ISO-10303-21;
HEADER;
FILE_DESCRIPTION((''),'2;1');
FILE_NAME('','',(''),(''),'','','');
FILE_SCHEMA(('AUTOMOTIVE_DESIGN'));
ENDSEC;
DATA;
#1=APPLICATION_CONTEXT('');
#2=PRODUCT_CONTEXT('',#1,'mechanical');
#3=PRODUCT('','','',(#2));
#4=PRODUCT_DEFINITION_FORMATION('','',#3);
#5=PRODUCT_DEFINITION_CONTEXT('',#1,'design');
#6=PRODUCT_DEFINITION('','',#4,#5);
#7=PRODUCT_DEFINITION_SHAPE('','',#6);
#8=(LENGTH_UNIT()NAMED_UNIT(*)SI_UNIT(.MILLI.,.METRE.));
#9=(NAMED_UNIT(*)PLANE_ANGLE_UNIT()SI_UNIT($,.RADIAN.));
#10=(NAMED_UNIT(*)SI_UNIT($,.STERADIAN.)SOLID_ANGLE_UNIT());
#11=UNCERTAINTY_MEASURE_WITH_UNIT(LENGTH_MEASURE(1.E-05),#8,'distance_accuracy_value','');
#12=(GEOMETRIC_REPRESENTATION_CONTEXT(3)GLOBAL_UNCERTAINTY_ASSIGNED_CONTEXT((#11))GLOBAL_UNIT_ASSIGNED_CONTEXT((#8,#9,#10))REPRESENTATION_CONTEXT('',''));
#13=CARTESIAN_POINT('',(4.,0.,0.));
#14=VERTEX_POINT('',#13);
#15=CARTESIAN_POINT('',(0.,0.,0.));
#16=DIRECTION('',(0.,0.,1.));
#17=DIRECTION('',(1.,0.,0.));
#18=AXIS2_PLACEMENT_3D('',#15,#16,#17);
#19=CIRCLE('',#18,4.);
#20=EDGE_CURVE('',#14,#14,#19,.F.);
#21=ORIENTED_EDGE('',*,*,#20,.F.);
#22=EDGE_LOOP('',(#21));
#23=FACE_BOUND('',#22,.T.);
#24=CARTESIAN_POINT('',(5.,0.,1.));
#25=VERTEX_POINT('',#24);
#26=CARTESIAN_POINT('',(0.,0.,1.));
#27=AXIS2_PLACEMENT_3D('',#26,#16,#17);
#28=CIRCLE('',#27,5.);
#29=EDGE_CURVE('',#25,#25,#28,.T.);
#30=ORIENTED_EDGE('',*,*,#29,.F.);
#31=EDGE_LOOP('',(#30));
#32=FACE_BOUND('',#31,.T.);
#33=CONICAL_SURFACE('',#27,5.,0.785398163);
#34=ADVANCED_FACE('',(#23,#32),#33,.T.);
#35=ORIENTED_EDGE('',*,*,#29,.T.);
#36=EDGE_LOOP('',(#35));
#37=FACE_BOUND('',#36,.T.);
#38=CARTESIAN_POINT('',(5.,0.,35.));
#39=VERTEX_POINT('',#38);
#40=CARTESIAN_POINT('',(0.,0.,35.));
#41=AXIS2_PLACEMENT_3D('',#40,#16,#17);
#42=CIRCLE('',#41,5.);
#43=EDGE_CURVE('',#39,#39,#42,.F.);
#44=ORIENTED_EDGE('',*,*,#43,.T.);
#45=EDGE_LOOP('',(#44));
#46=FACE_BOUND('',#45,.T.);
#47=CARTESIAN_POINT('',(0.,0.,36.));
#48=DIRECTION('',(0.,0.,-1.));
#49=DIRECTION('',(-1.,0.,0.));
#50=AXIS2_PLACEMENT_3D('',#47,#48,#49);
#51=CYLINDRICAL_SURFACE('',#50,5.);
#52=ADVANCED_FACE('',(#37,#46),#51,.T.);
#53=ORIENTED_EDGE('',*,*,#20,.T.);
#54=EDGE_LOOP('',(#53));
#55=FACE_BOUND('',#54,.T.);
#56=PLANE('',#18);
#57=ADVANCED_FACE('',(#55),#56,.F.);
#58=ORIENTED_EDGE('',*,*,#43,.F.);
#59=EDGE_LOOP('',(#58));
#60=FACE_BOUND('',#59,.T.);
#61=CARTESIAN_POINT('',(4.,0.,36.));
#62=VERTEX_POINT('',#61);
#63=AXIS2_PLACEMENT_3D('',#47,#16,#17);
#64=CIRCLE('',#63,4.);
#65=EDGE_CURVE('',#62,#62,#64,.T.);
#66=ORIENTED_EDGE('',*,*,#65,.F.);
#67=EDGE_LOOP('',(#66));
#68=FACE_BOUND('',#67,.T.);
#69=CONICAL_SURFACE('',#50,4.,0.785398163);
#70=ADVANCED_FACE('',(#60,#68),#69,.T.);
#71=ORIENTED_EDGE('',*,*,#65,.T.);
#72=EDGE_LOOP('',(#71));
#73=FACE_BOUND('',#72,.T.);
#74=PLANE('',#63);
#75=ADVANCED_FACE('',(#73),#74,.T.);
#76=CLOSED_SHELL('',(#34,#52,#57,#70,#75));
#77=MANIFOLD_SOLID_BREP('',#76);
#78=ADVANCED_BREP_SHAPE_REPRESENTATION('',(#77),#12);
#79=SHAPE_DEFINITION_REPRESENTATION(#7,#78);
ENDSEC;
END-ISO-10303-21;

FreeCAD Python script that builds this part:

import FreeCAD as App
import Part
import Sketcher
Q = App.Units.Quantity


def edges_at(feature, points):
    """Names of the edges that pass closest to the given points."""
    edges = feature.Shape.Edges
    near = lambda p: min(range(len(edges)), key=lambda i: edges[i].distToShape(Part.Vertex(*p))[0])
    return sorted({f"Edge{near(p) + 1}" for p in points})

doc = App.newDocument("Part")
body = doc.addObject("PartDesign::Body", "Body")

# Sketch on XY plane
sketch1 = body.newObject("Sketcher::SketchObject", "Sketch")
sketch1.AttachmentSupport = (doc.getObject("XY_Plane"), [""])
sketch1.MapMode = "FlatFace"
sketch1.addGeometry(Part.Circle(App.Vector(0, 0, 0), App.Vector(0, 0, 1), 5), False)
sketch1.addConstraint([
    Sketcher.Constraint("Coincident", 0, 3, -1, 1),
    Sketcher.Constraint("Diameter", 0, Q("10 mm")),
])
pad1 = body.newObject("PartDesign::Pad", "Pad")
pad1.Profile = sketch1
pad1.Length = 36
doc.recompute()

chamfer = body.newObject("PartDesign::Chamfer", "Chamfer")
chamfer.Base = (pad1, edges_at(pad1, [(-5, 0, 0), (-5, 0, 36)]))
chamfer.Size = 1

doc.recompute()
